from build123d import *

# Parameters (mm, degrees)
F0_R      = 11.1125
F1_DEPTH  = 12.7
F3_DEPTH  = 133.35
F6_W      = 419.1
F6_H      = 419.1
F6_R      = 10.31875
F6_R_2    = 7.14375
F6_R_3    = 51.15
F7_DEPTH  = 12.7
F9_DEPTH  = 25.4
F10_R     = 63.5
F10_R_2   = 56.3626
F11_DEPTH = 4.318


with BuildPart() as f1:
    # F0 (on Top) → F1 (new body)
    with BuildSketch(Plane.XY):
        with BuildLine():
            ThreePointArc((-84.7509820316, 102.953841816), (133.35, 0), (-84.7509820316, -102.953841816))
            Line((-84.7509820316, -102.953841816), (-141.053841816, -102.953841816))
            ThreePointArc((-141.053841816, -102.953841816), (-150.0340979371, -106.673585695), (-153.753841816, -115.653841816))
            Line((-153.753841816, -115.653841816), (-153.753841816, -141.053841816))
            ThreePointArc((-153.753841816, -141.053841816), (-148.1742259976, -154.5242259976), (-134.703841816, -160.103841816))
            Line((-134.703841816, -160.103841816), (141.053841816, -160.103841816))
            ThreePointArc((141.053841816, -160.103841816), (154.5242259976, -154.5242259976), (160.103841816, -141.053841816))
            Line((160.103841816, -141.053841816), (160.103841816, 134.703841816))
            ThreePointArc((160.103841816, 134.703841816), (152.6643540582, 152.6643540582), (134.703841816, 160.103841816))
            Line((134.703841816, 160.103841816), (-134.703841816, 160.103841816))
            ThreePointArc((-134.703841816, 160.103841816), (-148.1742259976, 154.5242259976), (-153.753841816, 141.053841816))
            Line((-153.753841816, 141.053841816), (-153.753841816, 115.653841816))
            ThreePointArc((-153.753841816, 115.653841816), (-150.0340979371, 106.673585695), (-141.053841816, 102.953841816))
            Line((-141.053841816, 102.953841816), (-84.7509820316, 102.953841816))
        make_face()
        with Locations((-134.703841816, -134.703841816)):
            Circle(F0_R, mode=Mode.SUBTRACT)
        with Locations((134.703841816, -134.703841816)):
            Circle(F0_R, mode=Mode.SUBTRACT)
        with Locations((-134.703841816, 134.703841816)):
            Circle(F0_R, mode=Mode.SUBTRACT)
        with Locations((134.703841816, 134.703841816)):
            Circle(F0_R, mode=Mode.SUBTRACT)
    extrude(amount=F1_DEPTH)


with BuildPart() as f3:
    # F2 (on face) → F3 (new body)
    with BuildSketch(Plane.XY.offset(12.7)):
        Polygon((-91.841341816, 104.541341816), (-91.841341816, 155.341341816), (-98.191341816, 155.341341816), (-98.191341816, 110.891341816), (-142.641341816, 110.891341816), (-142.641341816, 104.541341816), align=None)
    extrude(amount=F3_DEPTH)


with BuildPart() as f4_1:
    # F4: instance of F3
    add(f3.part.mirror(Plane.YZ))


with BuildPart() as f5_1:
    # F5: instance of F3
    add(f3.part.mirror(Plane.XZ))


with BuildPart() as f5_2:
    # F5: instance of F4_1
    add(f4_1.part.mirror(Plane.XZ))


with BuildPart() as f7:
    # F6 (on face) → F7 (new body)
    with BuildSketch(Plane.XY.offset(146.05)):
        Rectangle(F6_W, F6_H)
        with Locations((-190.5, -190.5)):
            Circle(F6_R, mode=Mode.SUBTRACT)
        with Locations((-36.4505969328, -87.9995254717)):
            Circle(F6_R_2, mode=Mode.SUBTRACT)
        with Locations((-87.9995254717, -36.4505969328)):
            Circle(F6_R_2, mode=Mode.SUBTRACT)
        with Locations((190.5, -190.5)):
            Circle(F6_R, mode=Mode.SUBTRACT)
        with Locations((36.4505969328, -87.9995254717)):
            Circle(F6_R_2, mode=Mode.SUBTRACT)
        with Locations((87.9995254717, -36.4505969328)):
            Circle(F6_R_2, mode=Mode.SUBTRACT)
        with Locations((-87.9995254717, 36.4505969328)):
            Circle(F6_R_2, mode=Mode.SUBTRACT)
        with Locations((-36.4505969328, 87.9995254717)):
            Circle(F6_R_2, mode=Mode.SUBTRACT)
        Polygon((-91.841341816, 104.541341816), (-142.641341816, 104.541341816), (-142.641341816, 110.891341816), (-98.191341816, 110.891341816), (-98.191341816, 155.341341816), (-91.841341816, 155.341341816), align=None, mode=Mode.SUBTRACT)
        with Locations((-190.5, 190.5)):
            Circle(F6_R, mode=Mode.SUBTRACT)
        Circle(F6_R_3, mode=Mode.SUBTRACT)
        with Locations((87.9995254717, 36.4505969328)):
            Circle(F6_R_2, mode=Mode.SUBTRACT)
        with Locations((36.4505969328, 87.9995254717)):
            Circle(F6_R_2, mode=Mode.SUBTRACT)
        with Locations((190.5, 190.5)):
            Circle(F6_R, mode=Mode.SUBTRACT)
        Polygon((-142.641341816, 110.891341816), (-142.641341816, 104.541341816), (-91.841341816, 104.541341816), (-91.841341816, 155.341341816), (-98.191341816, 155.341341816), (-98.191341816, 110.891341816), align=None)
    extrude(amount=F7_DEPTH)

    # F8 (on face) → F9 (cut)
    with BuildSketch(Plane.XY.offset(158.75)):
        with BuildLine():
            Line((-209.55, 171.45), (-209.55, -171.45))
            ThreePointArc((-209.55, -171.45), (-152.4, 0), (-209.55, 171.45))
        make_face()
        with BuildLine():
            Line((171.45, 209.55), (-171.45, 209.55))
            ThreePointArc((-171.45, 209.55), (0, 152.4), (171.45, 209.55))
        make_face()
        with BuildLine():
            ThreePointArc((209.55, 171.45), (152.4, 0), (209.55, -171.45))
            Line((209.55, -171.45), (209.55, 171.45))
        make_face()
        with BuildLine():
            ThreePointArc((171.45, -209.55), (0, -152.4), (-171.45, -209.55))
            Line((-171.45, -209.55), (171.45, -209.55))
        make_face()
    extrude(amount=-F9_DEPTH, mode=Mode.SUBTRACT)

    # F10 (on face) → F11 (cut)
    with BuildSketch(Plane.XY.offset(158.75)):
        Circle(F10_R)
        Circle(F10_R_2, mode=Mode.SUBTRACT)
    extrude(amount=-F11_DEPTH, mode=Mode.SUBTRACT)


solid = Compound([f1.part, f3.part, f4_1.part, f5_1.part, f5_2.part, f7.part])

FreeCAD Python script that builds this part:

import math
import FreeCAD as App
import Part
import Sketcher
from FreeCAD import Vector
Q = App.Units.Quantity

doc = App.newDocument("Part")
body = doc.addObject("PartDesign::Body", "Body")

# Sketch on XY plane
sketch1 = body.newObject("Sketcher::SketchObject", "Sketch")
sketch1.AttachmentSupport = (doc.getObject("XY_Plane"), [""])
sketch1.MapMode = "FlatFace"
sketch1.addGeometry([
    Part.ArcOfCircle(Part.Circle(Vector(0, 0, 0), Vector(0, 0, 1), 133), math.radians(-129), math.radians(129)),  # 0
    Part.LineSegment(Vector(-85, -103, 0), Vector(-141, -103, 0)),  # 1
    Part.ArcOfCircle(Part.Circle(Vector(-141, -116, 0), Vector(0, 0, 1), 13), math.radians(90), math.radians(180)),  # 2
    Part.LineSegment(Vector(-154, -116, 0), Vector(-154, -141, 0)),  # 3
    Part.ArcOfCircle(Part.Circle(Vector(-135, -141, 0), Vector(0, 0, 1), 19), math.radians(180), math.radians(270)),  # 4
    Part.LineSegment(Vector(-135, -160, 0), Vector(141, -160, 0)),  # 5
    Part.ArcOfCircle(Part.Circle(Vector(141, -141, 0), Vector(0, 0, 1), 19), math.radians(-90), math.radians(0)),  # 6
    Part.LineSegment(Vector(160, -141, 0), Vector(160, 135, 0)),  # 7
    Part.ArcOfCircle(Part.Circle(Vector(135, 135, 0), Vector(0, 0, 1), 25), math.radians(0), math.radians(90)),  # 8
    Part.LineSegment(Vector(135, 160, 0), Vector(-135, 160, 0)),  # 9
    Part.ArcOfCircle(Part.Circle(Vector(-135, 141, 0), Vector(0, 0, 1), 19), math.radians(90), math.radians(180)),  # 10
    Part.LineSegment(Vector(-154, 141, 0), Vector(-154, 116, 0)),  # 11
    Part.ArcOfCircle(Part.Circle(Vector(-141, 116, 0), Vector(0, 0, 1), 13), math.radians(180), math.radians(270)),  # 12
    Part.LineSegment(Vector(-141, 103, 0), Vector(-85, 103, 0)),  # 13
    Part.Circle(Vector(-135, -135, 0), Vector(0, 0, 1), 11),  # 14
    Part.Circle(Vector(135, -135, 0), Vector(0, 0, 1), 11),  # 15
    Part.Circle(Vector(-135, 135, 0), Vector(0, 0, 1), 11),  # 16
    Part.Circle(Vector(135, 135, 0), Vector(0, 0, 1), 11),  # 17
], False)
sketch1.addConstraint([
    Sketcher.Constraint("Coincident", 0, 1, 1, 1),
    Sketcher.Constraint("Tangent", 1, 2, 2, 1),
    Sketcher.Constraint("Tangent", 2, 2, 3, 1),
    Sketcher.Constraint("Tangent", 3, 2, 4, 1),
    Sketcher.Constraint("Tangent", 4, 2, 5, 1),
    Sketcher.Constraint("Tangent", 5, 2, 6, 1),
    Sketcher.Constraint("Tangent", 6, 2, 7, 1),
    Sketcher.Constraint("Tangent", 7, 2, 8, 1),
    Sketcher.Constraint("Tangent", 8, 2, 9, 1),
    Sketcher.Constraint("Tangent", 9, 2, 10, 1),
    Sketcher.Constraint("Tangent", 10, 2, 11, 1),
    Sketcher.Constraint("Tangent", 11, 2, 12, 1),
    Sketcher.Constraint("Tangent", 12, 2, 13, 1),
    Sketcher.Constraint("Coincident", 13, 2, 0, 2),
    Sketcher.Constraint("Horizontal", 1),
    Sketcher.Constraint("Vertical", 3),
    Sketcher.Constraint("Horizontal", 5),
    Sketcher.Constraint("Vertical", 7),
    Sketcher.Constraint("Horizontal", 9),
    Sketcher.Constraint("Vertical", 11),
    Sketcher.Constraint("Horizontal", 13),
    Sketcher.Constraint("Coincident", 0, 3, -1, 1),
    Sketcher.Constraint("Coincident", 17, 3, 8, 3),
    Sketcher.Constraint("Equal", 4, 6),
    Sketcher.Constraint("Equal", 6, 10),
    Sketcher.Constraint("Equal", 2, 12),
    Sketcher.Constraint("Equal", 14, 15),
    Sketcher.Constraint("Equal", 15, 16),
    Sketcher.Constraint("Equal", 16, 17),
    Sketcher.Constraint("Symmetric", 8, 3, 14, 3, -1, 1),
    Sketcher.Constraint("Symmetric", 15, 3, 16, 3, -1, 1),
    Sketcher.Constraint("Symmetric", 4, 2, 8, 2, -1, 1),
    Sketcher.Constraint("Symmetric", 14, 3, 15, 3, -2),
    Sketcher.Constraint("Symmetric", 2, 3, 12, 3, -1),
    Sketcher.Constraint("Equal", 5, 7),
    Sketcher.Constraint("Radius", 8, Q("1 in")),
    Sketcher.Constraint("Radius", 2, Q("0.5 in")),
    Sketcher.Constraint("DistanceY", 3, 2, 3, 1, Q("1 in")),
    Sketcher.Constraint("Radius", 0, Q("5.25 in")),
    Sketcher.Constraint("Radius", 4, Q("0.75 in")),
    Sketcher.Constraint("Diameter", 14, Q("0.875 in")),
    Sketcher.Constraint("DistanceX", 1, 2, 1, 1, 56.30286),
])
pad1 = body.newObject("PartDesign::Pad", "Pad")
pad1.Profile = sketch1
pad1.Length = Q("0.5 in")
body2 = doc.addObject("PartDesign::Body", "Body001")

# Sketch on XY plane
sketch2 = body2.newObject("Sketcher::SketchObject", "Sketch001")
sketch2.AttachmentSupport = (doc.getObject("XY_Plane001"), [""])
sketch2.MapMode = "FlatFace"
sketch2.AttachmentOffset = App.Placement(Vector(0, 0, 0.5 * 25.4), App.Rotation())
sketch2.addGeometry([
    Part.LineSegment(Vector(-92, 105, 0), Vector(-92, 155, 0)),  # 0
    Part.LineSegment(Vector(-92, 155, 0), Vector(-98, 155, 0)),  # 1
    Part.LineSegment(Vector(-98, 155, 0), Vector(-98, 111, 0)),  # 2
    Part.LineSegment(Vector(-98, 111, 0), Vector(-143, 111, 0)),  # 3
    Part.LineSegment(Vector(-143, 111, 0), Vector(-143, 105, 0)),  # 4
    Part.LineSegment(Vector(-143, 105, 0), Vector(-92, 105, 0)),  # 5
], False)
sketch2.addConstraint([
    Sketcher.Constraint("Coincident", 0, 2, 1, 1),
    Sketcher.Constraint("Coincident", 1, 2, 2, 1),
    Sketcher.Constraint("Coincident", 2, 2, 3, 1),
    Sketcher.Constraint("Coincident", 3, 2, 4, 1),
    Sketcher.Constraint("Coincident", 4, 2, 5, 1),
    Sketcher.Constraint("Coincident", 5, 2, 0, 1),
    Sketcher.Constraint("Vertical", 0),
    Sketcher.Constraint("Horizontal", 1),
    Sketcher.Constraint("Vertical", 2),
    Sketcher.Constraint("Horizontal", 3),
    Sketcher.Constraint("Vertical", 4),
    Sketcher.Constraint("Horizontal", 5),
    Sketcher.Constraint("Equal", 5, 0),
    Sketcher.Constraint("Equal", 3, 2),
    Sketcher.Constraint("DistanceX", 5, 1, 5, 2, Q("2 in")),
    Sketcher.Constraint("DistanceX", 1, 2, 1, 1, Q("0.25 in")),
    Sketcher.Constraint("DistanceX", 0, 2, -1, 1, 91.841342),
    Sketcher.Constraint("DistanceY", -1, 1, 0, 2, 155.341342),
])
pad2 = body2.newObject("PartDesign::Pad", "Pad001")
pad2.Profile = sketch2
pad2.Length = Q("5.25 in")
body3 = doc.addObject("PartDesign::Body", "Body002")
doc.recompute()

mirroring = doc.addObject("Part::Mirroring", "Mirroring")
mirroring.Source = body2
mirroring.Base = Vector(0, 0, 0)
mirroring.Normal = Vector(1, 0, 0)
body3.BaseFeature = mirroring
doc.recompute()
body4 = doc.addObject("PartDesign::Body", "Body003")
doc.recompute()

mirroring2 = doc.addObject("Part::Mirroring", "Mirroring001")
mirroring2.Source = body2
mirroring2.Base = Vector(0, 0, 0)
mirroring2.Normal = Vector(0, -1, 0)
body4.BaseFeature = mirroring2
doc.recompute()
body5 = doc.addObject("PartDesign::Body", "Body004")
doc.recompute()

mirroring3 = doc.addObject("Part::Mirroring", "Mirroring002")
mirroring3.Source = body3
mirroring3.Base = Vector(0, 0, 0)
mirroring3.Normal = Vector(0, -1, 0)
body5.BaseFeature = mirroring3
doc.recompute()
body6 = doc.addObject("PartDesign::Body", "Body005")

# Sketch on XY plane
sketch3 = body6.newObject("Sketcher::SketchObject", "Sketch002")
sketch3.AttachmentSupport = (doc.getObject("XY_Plane005"), [""])
sketch3.MapMode = "FlatFace"
sketch3.AttachmentOffset = App.Placement(Vector(0, 0, 5.75 * 25.4), App.Rotation())
sketch3.addGeometry([
    Part.LineSegment(Vector(-210, 210, 0), Vector(-210, -210, 0)),  # 0
    Part.LineSegment(Vector(-210, -210, 0), Vector(210, -210, 0)),  # 1
    Part.LineSegment(Vector(210, -210, 0), Vector(210, 210, 0)),  # 2
    Part.LineSegment(Vector(210, 210, 0), Vector(-210, 210, 0)),  # 3
    Part.Circle(Vector(-190, -190, 0), Vector(0, 0, 1), 10),  # 4
    Part.Circle(Vector(-36, -88, 0), Vector(0, 0, 1), 7),  # 5
    Part.Circle(Vector(-88, -36, 0), Vector(0, 0, 1), 7),  # 6
    Part.Circle(Vector(190, -190, 0), Vector(0, 0, 1), 10),  # 7
    Part.Circle(Vector(36, -88, 0), Vector(0, 0, 1), 7),  # 8
    Part.Circle(Vector(88, -36, 0), Vector(0, 0, 1), 7),  # 9
    Part.Circle(Vector(-88, 36, 0), Vector(0, 0, 1), 7),  # 10
    Part.Circle(Vector(-36, 88, 0), Vector(0, 0, 1), 7),  # 11
    Part.Circle(Vector(-190, 190, 0), Vector(0, 0, 1), 10),  # 12
    Part.Circle(Vector(0, 0, 0), Vector(0, 0, 1), 51),  # 13
    Part.Circle(Vector(88, 36, 0), Vector(0, 0, 1), 7),  # 14
    Part.Circle(Vector(36, 88, 0), Vector(0, 0, 1), 7),  # 15
    Part.Circle(Vector(190, 190, 0), Vector(0, 0, 1), 10),  # 16
], False)
sketch3.addConstraint([
    Sketcher.Constraint("Coincident", 0, 2, 1, 1),
    Sketcher.Constraint("Coincident", 1, 2, 2, 1),
    Sketcher.Constraint("Coincident", 2, 2, 3, 1),
    Sketcher.Constraint("Coincident", 3, 2, 0, 1),
    Sketcher.Constraint("Vertical", 0),
    Sketcher.Constraint("Horizontal", 1),
    Sketcher.Constraint("Vertical", 2),
    Sketcher.Constraint("Horizontal", 3),
    Sketcher.Constraint("Coincident", 13, 3, -1, 1),
    Sketcher.Constraint("Equal", 5, 6),
    Sketcher.Constraint("Equal", 4, 7),
    Sketcher.Constraint("Equal", 6, 8),
    Sketcher.Constraint("Equal", 8, 9),
    Sketcher.Constraint("Equal", 9, 10),
    Sketcher.Constraint("Equal", 10, 11),
    Sketcher.Constraint("Equal", 7, 12),
    Sketcher.Constraint("Equal", 11, 14),
    Sketcher.Constraint("Equal", 14, 15),
    Sketcher.Constraint("Equal", 12, 16),
    Sketcher.Constraint("Symmetric", 9, 3, 10, 3, -1, 1),
    Sketcher.Constraint("Symmetric", 8, 3, 11, 3, -1, 1),
    Sketcher.Constraint("Symmetric", 7, 3, 12, 3, -1, 1),
    Sketcher.Constraint("Symmetric", 6, 3, 14, 3, -1, 1),
    Sketcher.Constraint("Symmetric", 5, 3, 15, 3, -1, 1),
    Sketcher.Constraint("Symmetric", 4, 3, 16, 3, -1, 1),
    Sketcher.Constraint("Symmetric", 0, 2, 2, 2, -1, 1),
    Sketcher.Constraint("Symmetric", 4, 3, 7, 3, -2),
    Sketcher.Constraint("Symmetric", 5, 3, 8, 3, -2),
    Sketcher.Constraint("Symmetric", 6, 3, 9, 3, -2),
    Sketcher.Constraint("Equal", 3, 0),
    Sketcher.Constraint("Diameter", 4, Q("0.8125 in")),
    Sketcher.Constraint("Diameter", 5, Q("0.5625 in")),
    Sketcher.Constraint("DistanceX", 1, 1, 1, 2, Q("16.5 in")),
    Sketcher.Constraint("DistanceX", 4, 3, 7, 3, Q("15 in")),
    Sketcher.Constraint("DistanceY", 4, 3, -1, 1, Q("7.5 in")),
    Sketcher.Constraint("Diameter", 13, 102.3),
    Sketcher.Constraint("DistanceX", 6, 3, 5, 3, 51.548929),
    Sketcher.Constraint("DistanceY", 5, 3, 6, 3, 51.548929),
    Sketcher.Constraint("DistanceX", 6, 3, 9, 3, 175.999051),
    Sketcher.Constraint("DistanceY", 5, 3, 11, 3, 175.999051),
])
pad3 = body6.newObject("PartDesign::Pad", "Pad002")
pad3.Profile = sketch3
pad3.Length = Q("0.5 in")

# Sketch on XY plane
sketch4 = body6.newObject("Sketcher::SketchObject", "Sketch003")
sketch4.AttachmentSupport = (doc.getObject("XY_Plane005"), [""])
sketch4.MapMode = "FlatFace"
sketch4.AttachmentOffset = App.Placement(Vector(0, 0, 6.25 * 25.4), App.Rotation())
sketch4.addGeometry([
    Part.LineSegment(Vector(-210, 171, 0), Vector(-210, -171, 0)),  # 0
    Part.ArcOfCircle(Part.Circle(Vector(-438, 0, 0), Vector(0, 0, 1), 286), math.radians(-37), math.radians(37)),  # 1
    Part.LineSegment(Vector(171, 210, 0), Vector(-171, 210, 0)),  # 2
    Part.ArcOfCircle(Part.Circle(Vector(0, 438, 0), Vector(0, 0, 1), 286), math.radians(-127), math.radians(-53)),  # 3
    Part.ArcOfCircle(Part.Circle(Vector(438, 0, 0), Vector(0, 0, 1), 286), math.radians(143), math.radians(217)),  # 4
    Part.LineSegment(Vector(210, -171, 0), Vector(210, 171, 0)),  # 5
    Part.ArcOfCircle(Part.Circle(Vector(0, -438, 0), Vector(0, 0, 1), 286), math.radians(53), math.radians(127)),  # 6
    Part.LineSegment(Vector(-171, -210, 0), Vector(171, -210, 0)),  # 7
], False)
sketch4.addConstraint([
    Sketcher.Constraint("Coincident", 0, 1, 1, 2),
    Sketcher.Constraint("Coincident", 1, 1, 0, 2),
    Sketcher.Constraint("Coincident", 2, 1, 3, 2),
    Sketcher.Constraint("Coincident", 3, 1, 2, 2),
    Sketcher.Constraint("Coincident", 4, 1, 5, 2),
    Sketcher.Constraint("Coincident", 5, 1, 4, 2),
    Sketcher.Constraint("Coincident", 6, 1, 7, 2),
    Sketcher.Constraint("Coincident", 7, 1, 6, 2),
    Sketcher.Constraint("Vertical", 0),
    Sketcher.Constraint("Horizontal", 2),
    Sketcher.Constraint("Vertical", 5),
    Sketcher.Constraint("Horizontal", 7),
    Sketcher.Constraint("Equal", 1, 3),
    Sketcher.Constraint("Equal", 3, 4),
    Sketcher.Constraint("Equal", 4, 6),
    Sketcher.Constraint("Symmetric", 1, 3, 4, 3, -1, 1),
    Sketcher.Constraint("Symmetric", 3, 3, 6, 3, -1, 1),
    Sketcher.Constraint("Symmetric", 0, 1, 4, 1, -2),
    Sketcher.Constraint("Symmetric", 2, 1, 6, 1, -1),
    Sketcher.Constraint("Equal", 7, 0),
    Sketcher.Constraint("Radius", 1, Q("11.25 in")),
    Sketcher.Constraint("DistanceX", 2, 2, 2, 1, Q("13.5 in")),
    Sketcher.Constraint("DistanceY", 6, 3, 0, 1, Q("24 in")),
    Sketcher.Constraint("DistanceX", 0, 1, 2, 1, Q("15 in")),
])
pocket1 = body6.newObject("PartDesign::Pocket", "Pocket")
pocket1.Profile = sketch4
pocket1.Length = Q("1 in")

# Sketch on XY plane
sketch5 = body6.newObject("Sketcher::SketchObject", "Sketch004")
sketch5.AttachmentSupport = (doc.getObject("XY_Plane005"), [""])
sketch5.MapMode = "FlatFace"
sketch5.AttachmentOffset = App.Placement(Vector(0, 0, 6.25 * 25.4), App.Rotation())
sketch5.addGeometry([
    Part.Circle(Vector(0, 0, 0), Vector(0, 0, 1), 64),
    Part.Circle(Vector(0, 0, 0), Vector(0, 0, 1), 56),
], False)
sketch5.addConstraint([
    Sketcher.Constraint("Coincident", 0, 3, -1, 1),
    Sketcher.Constraint("Coincident", 1, 3, -1, 1),
    Sketcher.Constraint("Diameter", 0, Q("5 in")),
    Sketcher.Constraint("Diameter", 1, Q("4.438 in")),
])
pocket2 = body6.newObject("PartDesign::Pocket", "Pocket001")
pocket2.Profile = sketch5
pocket2.Length = Q("0.17 in")
mirroring.Visibility = False
mirroring2.Visibility = False
mirroring3.Visibility = False

doc.recompute()
